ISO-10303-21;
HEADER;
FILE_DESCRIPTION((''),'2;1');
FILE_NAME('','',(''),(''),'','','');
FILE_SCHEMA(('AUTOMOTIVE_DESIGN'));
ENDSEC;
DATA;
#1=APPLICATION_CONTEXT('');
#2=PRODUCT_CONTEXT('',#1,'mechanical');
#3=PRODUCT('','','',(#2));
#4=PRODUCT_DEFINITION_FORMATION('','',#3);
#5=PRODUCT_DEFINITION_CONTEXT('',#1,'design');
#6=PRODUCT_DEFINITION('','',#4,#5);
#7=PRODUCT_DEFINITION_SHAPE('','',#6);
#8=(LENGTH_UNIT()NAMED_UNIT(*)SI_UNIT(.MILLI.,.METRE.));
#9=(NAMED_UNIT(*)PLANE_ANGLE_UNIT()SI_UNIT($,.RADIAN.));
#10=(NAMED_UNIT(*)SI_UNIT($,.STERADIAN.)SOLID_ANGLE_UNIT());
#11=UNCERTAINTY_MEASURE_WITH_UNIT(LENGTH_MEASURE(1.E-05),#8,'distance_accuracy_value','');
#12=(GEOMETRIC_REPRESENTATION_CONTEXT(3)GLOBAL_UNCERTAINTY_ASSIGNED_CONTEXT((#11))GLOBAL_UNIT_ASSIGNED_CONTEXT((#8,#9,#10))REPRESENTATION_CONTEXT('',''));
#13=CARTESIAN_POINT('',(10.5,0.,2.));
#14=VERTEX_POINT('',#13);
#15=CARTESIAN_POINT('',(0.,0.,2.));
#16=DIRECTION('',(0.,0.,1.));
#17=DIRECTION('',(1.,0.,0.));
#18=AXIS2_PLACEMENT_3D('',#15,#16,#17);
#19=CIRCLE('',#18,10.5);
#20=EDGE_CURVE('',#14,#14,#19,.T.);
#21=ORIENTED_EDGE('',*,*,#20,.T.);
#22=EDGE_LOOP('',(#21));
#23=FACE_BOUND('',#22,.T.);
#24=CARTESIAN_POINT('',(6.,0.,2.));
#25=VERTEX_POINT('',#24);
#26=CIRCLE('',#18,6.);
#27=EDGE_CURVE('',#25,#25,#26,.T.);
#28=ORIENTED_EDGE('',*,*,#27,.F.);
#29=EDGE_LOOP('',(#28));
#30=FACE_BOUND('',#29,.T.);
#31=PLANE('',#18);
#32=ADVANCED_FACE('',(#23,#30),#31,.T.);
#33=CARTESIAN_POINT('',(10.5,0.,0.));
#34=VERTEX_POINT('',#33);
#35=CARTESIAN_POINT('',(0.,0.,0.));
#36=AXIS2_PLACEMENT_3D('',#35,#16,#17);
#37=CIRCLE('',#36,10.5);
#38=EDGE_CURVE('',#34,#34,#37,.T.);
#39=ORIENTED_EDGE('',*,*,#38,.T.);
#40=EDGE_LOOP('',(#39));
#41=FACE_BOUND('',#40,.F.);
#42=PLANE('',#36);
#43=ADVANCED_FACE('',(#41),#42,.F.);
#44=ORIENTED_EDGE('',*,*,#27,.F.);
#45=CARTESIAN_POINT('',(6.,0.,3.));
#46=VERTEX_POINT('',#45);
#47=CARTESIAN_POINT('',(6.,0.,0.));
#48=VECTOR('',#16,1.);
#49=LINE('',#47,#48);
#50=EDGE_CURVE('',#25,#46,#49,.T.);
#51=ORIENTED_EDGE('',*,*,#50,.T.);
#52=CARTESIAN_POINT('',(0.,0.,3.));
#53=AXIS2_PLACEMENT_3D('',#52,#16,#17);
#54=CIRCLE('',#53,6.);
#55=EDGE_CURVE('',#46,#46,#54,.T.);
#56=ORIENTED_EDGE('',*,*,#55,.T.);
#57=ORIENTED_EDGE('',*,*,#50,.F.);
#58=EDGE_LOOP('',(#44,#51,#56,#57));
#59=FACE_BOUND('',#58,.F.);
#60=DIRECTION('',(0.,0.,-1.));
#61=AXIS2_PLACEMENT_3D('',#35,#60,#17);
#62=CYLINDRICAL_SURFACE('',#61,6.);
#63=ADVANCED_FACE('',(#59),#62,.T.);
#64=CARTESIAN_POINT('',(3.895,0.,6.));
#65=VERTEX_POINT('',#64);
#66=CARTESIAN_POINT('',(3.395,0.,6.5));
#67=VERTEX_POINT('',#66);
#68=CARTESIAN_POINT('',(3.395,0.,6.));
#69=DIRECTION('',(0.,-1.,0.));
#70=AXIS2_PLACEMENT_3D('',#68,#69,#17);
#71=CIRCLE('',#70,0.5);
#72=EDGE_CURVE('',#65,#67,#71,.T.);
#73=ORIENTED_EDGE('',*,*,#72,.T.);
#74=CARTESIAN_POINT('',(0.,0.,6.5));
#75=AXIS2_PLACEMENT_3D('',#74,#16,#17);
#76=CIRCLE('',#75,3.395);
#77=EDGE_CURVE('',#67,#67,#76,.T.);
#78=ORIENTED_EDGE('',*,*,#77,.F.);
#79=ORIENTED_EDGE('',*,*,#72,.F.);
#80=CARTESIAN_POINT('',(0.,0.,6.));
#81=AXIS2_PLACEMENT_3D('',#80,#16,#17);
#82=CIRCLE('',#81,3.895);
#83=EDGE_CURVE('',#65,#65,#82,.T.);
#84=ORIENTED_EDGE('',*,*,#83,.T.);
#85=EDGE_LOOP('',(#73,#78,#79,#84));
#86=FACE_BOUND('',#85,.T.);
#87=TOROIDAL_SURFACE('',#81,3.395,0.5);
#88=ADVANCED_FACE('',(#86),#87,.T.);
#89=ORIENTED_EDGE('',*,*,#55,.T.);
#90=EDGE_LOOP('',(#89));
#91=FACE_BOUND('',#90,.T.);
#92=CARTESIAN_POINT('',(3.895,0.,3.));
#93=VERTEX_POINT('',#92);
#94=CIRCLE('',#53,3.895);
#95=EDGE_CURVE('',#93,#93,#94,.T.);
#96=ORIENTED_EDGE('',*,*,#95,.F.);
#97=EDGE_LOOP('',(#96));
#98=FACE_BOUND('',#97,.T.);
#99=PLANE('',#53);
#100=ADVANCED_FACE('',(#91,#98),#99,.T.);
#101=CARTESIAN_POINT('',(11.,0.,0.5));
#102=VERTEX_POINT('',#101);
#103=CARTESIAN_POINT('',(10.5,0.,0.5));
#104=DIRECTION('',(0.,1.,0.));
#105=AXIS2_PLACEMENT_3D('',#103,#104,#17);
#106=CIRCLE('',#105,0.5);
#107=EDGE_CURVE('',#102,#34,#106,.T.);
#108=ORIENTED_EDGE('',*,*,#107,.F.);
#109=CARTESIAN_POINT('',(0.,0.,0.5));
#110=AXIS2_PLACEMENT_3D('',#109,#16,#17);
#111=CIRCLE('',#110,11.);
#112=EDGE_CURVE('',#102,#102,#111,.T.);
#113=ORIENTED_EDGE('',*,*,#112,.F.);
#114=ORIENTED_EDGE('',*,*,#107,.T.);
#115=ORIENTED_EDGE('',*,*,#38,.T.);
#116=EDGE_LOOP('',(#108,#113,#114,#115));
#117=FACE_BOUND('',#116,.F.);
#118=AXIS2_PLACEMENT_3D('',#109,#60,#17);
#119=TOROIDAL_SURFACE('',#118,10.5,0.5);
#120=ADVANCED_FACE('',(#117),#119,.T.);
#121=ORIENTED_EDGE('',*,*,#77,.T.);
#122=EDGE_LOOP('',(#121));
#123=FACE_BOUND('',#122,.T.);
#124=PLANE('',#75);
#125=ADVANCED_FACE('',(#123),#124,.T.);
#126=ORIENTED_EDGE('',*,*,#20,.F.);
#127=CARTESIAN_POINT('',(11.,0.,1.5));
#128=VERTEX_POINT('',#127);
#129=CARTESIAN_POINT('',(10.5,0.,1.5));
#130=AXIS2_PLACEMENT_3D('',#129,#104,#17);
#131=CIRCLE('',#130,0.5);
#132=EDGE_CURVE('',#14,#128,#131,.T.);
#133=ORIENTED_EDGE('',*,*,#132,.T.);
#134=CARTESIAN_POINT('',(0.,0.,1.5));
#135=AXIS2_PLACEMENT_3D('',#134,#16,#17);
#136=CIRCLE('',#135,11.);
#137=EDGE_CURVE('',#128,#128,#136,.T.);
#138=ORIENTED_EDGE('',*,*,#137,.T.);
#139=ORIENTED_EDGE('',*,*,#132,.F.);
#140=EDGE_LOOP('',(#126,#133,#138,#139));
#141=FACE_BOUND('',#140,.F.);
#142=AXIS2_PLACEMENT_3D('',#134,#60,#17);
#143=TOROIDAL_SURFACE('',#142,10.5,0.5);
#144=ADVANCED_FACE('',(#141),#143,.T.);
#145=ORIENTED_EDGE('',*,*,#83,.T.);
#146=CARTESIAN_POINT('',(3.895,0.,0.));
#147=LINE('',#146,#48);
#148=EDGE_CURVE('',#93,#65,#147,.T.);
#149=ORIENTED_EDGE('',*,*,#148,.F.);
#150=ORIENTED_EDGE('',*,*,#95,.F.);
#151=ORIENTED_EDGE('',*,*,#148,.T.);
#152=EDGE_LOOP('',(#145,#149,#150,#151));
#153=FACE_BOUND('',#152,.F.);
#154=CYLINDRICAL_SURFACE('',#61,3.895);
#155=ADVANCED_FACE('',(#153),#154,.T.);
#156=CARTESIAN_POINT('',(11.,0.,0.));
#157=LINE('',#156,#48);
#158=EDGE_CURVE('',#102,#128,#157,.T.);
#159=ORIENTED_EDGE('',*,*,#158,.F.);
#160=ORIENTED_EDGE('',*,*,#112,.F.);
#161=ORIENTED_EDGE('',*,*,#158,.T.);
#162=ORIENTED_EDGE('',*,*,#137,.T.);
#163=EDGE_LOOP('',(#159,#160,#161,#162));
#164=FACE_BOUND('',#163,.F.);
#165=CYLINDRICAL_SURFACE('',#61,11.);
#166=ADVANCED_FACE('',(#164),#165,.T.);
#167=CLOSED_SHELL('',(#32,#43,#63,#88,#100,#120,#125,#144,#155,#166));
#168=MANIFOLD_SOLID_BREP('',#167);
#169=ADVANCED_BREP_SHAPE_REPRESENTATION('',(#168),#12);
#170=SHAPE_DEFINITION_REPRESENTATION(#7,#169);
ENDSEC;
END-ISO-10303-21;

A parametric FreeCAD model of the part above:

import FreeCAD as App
import Part
import Sketcher


def edges_at(feature, points):
    """Names of the edges that pass closest to the given points."""
    edges = feature.Shape.Edges
    near = lambda p: min(range(len(edges)), key=lambda i: edges[i].distToShape(Part.Vertex(*p))[0])
    return sorted({f"Edge{near(p) + 1}" for p in points})

doc = App.newDocument("Part")
params = doc.addObject("Spreadsheet::Sheet", "Params")
for row, (alias, value) in enumerate([
    ("sketch1_diameter", "22 mm"),
    ("sketch1_diameter2", "12 mm"),
    ("pad1_length", "2 mm"),
    ("sketch2_diameter", "12 mm"),
    ("sketch2_diameter2", "7.79 mm"),
    ("pad2_length", "3 mm"),
    ("sketch3_diameter", "7.79 mm"),
    ("pad3_length", "6.5 mm"),
    ("fillet_radius", "0.5 mm"),
    ("fillet2_radius", "0.5 mm"),
], start=1):
    params.set(f"A{row}", alias)
    params.set(f"B{row}", "=" + value)
    params.setAlias(f"B{row}", alias)

body = doc.addObject("PartDesign::Body", "Body")

sketch1 = body.newObject("Sketcher::SketchObject", "Sketch")
sketch1.AttachmentSupport = (doc.getObject("XY_Plane"), [""])
sketch1.MapMode = "FlatFace"
sketch1.addGeometry(Part.Circle(App.Vector(0, 0, 0), App.Vector(0, 0, 1), 11), False)
sketch1.addGeometry(Part.Circle(App.Vector(0, 0, 0), App.Vector(0, 0, 1), 6), False)
sketch1.addConstraint(Sketcher.Constraint("Coincident", 0, 3, -1, 1))
sketch1.addConstraint(Sketcher.Constraint("Coincident", 1, 3, -1, 1))
sketch1.addConstraint(Sketcher.Constraint("Diameter", 0, 22.0))
sketch1.addConstraint(Sketcher.Constraint("Diameter", 1, 12.0))
sketch1.setExpression("Constraints[2]", "Params.sketch1_diameter")
sketch1.setExpression("Constraints[3]", "Params.sketch1_diameter2")
pad1 = body.newObject("PartDesign::Pad", "Pad")
pad1.Profile = sketch1
pad1.setExpression("Length", "Params.pad1_length")

sketch2 = body.newObject("Sketcher::SketchObject", "Sketch001")
sketch2.AttachmentSupport = (doc.getObject("XY_Plane"), [""])
sketch2.MapMode = "FlatFace"
sketch2.addGeometry(Part.Circle(App.Vector(0, 0, 0), App.Vector(0, 0, 1), 6), False)
sketch2.addGeometry(Part.Circle(App.Vector(0, 0, 0), App.Vector(0, 0, 1), 3.9), False)
sketch2.addConstraint(Sketcher.Constraint("Coincident", 0, 3, -1, 1))
sketch2.addConstraint(Sketcher.Constraint("Coincident", 1, 3, -1, 1))
sketch2.addConstraint(Sketcher.Constraint("Diameter", 0, 12.0))
sketch2.addConstraint(Sketcher.Constraint("Diameter", 1, 7.79))
sketch2.setExpression("Constraints[2]", "Params.sketch2_diameter")
sketch2.setExpression("Constraints[3]", "Params.sketch2_diameter2")
pad2 = body.newObject("PartDesign::Pad", "Pad001")
pad2.Profile = sketch2
pad2.setExpression("Length", "Params.pad2_length")

sketch3 = body.newObject("Sketcher::SketchObject", "Sketch002")
sketch3.AttachmentSupport = (doc.getObject("XY_Plane"), [""])
sketch3.MapMode = "FlatFace"
sketch3.addGeometry(Part.Circle(App.Vector(0, 0, 0), App.Vector(0, 0, 1), 3.9), False)
sketch3.addConstraint(Sketcher.Constraint("Coincident", 0, 3, -1, 1))
sketch3.addConstraint(Sketcher.Constraint("Diameter", 0, 7.79))
sketch3.setExpression("Constraints[1]", "Params.sketch3_diameter")
pad3 = body.newObject("PartDesign::Pad", "Pad002")
pad3.Profile = sketch3
pad3.setExpression("Length", "Params.pad3_length")
doc.recompute()

fillet = body.newObject("PartDesign::Fillet", "Fillet")
fillet.Base = (pad3, edges_at(pad3, [(-3.895, 0, 6.5)]))
fillet.setExpression("Radius", "Params.fillet_radius")
doc.recompute()

fillet2 = body.newObject("PartDesign::Fillet", "Fillet001")
fillet2.Base = (fillet, edges_at(fillet, [(-11, 0, 0), (-11, 0, 2)]))
fillet2.setExpression("Radius", "Params.fillet2_radius")

doc.recompute()
